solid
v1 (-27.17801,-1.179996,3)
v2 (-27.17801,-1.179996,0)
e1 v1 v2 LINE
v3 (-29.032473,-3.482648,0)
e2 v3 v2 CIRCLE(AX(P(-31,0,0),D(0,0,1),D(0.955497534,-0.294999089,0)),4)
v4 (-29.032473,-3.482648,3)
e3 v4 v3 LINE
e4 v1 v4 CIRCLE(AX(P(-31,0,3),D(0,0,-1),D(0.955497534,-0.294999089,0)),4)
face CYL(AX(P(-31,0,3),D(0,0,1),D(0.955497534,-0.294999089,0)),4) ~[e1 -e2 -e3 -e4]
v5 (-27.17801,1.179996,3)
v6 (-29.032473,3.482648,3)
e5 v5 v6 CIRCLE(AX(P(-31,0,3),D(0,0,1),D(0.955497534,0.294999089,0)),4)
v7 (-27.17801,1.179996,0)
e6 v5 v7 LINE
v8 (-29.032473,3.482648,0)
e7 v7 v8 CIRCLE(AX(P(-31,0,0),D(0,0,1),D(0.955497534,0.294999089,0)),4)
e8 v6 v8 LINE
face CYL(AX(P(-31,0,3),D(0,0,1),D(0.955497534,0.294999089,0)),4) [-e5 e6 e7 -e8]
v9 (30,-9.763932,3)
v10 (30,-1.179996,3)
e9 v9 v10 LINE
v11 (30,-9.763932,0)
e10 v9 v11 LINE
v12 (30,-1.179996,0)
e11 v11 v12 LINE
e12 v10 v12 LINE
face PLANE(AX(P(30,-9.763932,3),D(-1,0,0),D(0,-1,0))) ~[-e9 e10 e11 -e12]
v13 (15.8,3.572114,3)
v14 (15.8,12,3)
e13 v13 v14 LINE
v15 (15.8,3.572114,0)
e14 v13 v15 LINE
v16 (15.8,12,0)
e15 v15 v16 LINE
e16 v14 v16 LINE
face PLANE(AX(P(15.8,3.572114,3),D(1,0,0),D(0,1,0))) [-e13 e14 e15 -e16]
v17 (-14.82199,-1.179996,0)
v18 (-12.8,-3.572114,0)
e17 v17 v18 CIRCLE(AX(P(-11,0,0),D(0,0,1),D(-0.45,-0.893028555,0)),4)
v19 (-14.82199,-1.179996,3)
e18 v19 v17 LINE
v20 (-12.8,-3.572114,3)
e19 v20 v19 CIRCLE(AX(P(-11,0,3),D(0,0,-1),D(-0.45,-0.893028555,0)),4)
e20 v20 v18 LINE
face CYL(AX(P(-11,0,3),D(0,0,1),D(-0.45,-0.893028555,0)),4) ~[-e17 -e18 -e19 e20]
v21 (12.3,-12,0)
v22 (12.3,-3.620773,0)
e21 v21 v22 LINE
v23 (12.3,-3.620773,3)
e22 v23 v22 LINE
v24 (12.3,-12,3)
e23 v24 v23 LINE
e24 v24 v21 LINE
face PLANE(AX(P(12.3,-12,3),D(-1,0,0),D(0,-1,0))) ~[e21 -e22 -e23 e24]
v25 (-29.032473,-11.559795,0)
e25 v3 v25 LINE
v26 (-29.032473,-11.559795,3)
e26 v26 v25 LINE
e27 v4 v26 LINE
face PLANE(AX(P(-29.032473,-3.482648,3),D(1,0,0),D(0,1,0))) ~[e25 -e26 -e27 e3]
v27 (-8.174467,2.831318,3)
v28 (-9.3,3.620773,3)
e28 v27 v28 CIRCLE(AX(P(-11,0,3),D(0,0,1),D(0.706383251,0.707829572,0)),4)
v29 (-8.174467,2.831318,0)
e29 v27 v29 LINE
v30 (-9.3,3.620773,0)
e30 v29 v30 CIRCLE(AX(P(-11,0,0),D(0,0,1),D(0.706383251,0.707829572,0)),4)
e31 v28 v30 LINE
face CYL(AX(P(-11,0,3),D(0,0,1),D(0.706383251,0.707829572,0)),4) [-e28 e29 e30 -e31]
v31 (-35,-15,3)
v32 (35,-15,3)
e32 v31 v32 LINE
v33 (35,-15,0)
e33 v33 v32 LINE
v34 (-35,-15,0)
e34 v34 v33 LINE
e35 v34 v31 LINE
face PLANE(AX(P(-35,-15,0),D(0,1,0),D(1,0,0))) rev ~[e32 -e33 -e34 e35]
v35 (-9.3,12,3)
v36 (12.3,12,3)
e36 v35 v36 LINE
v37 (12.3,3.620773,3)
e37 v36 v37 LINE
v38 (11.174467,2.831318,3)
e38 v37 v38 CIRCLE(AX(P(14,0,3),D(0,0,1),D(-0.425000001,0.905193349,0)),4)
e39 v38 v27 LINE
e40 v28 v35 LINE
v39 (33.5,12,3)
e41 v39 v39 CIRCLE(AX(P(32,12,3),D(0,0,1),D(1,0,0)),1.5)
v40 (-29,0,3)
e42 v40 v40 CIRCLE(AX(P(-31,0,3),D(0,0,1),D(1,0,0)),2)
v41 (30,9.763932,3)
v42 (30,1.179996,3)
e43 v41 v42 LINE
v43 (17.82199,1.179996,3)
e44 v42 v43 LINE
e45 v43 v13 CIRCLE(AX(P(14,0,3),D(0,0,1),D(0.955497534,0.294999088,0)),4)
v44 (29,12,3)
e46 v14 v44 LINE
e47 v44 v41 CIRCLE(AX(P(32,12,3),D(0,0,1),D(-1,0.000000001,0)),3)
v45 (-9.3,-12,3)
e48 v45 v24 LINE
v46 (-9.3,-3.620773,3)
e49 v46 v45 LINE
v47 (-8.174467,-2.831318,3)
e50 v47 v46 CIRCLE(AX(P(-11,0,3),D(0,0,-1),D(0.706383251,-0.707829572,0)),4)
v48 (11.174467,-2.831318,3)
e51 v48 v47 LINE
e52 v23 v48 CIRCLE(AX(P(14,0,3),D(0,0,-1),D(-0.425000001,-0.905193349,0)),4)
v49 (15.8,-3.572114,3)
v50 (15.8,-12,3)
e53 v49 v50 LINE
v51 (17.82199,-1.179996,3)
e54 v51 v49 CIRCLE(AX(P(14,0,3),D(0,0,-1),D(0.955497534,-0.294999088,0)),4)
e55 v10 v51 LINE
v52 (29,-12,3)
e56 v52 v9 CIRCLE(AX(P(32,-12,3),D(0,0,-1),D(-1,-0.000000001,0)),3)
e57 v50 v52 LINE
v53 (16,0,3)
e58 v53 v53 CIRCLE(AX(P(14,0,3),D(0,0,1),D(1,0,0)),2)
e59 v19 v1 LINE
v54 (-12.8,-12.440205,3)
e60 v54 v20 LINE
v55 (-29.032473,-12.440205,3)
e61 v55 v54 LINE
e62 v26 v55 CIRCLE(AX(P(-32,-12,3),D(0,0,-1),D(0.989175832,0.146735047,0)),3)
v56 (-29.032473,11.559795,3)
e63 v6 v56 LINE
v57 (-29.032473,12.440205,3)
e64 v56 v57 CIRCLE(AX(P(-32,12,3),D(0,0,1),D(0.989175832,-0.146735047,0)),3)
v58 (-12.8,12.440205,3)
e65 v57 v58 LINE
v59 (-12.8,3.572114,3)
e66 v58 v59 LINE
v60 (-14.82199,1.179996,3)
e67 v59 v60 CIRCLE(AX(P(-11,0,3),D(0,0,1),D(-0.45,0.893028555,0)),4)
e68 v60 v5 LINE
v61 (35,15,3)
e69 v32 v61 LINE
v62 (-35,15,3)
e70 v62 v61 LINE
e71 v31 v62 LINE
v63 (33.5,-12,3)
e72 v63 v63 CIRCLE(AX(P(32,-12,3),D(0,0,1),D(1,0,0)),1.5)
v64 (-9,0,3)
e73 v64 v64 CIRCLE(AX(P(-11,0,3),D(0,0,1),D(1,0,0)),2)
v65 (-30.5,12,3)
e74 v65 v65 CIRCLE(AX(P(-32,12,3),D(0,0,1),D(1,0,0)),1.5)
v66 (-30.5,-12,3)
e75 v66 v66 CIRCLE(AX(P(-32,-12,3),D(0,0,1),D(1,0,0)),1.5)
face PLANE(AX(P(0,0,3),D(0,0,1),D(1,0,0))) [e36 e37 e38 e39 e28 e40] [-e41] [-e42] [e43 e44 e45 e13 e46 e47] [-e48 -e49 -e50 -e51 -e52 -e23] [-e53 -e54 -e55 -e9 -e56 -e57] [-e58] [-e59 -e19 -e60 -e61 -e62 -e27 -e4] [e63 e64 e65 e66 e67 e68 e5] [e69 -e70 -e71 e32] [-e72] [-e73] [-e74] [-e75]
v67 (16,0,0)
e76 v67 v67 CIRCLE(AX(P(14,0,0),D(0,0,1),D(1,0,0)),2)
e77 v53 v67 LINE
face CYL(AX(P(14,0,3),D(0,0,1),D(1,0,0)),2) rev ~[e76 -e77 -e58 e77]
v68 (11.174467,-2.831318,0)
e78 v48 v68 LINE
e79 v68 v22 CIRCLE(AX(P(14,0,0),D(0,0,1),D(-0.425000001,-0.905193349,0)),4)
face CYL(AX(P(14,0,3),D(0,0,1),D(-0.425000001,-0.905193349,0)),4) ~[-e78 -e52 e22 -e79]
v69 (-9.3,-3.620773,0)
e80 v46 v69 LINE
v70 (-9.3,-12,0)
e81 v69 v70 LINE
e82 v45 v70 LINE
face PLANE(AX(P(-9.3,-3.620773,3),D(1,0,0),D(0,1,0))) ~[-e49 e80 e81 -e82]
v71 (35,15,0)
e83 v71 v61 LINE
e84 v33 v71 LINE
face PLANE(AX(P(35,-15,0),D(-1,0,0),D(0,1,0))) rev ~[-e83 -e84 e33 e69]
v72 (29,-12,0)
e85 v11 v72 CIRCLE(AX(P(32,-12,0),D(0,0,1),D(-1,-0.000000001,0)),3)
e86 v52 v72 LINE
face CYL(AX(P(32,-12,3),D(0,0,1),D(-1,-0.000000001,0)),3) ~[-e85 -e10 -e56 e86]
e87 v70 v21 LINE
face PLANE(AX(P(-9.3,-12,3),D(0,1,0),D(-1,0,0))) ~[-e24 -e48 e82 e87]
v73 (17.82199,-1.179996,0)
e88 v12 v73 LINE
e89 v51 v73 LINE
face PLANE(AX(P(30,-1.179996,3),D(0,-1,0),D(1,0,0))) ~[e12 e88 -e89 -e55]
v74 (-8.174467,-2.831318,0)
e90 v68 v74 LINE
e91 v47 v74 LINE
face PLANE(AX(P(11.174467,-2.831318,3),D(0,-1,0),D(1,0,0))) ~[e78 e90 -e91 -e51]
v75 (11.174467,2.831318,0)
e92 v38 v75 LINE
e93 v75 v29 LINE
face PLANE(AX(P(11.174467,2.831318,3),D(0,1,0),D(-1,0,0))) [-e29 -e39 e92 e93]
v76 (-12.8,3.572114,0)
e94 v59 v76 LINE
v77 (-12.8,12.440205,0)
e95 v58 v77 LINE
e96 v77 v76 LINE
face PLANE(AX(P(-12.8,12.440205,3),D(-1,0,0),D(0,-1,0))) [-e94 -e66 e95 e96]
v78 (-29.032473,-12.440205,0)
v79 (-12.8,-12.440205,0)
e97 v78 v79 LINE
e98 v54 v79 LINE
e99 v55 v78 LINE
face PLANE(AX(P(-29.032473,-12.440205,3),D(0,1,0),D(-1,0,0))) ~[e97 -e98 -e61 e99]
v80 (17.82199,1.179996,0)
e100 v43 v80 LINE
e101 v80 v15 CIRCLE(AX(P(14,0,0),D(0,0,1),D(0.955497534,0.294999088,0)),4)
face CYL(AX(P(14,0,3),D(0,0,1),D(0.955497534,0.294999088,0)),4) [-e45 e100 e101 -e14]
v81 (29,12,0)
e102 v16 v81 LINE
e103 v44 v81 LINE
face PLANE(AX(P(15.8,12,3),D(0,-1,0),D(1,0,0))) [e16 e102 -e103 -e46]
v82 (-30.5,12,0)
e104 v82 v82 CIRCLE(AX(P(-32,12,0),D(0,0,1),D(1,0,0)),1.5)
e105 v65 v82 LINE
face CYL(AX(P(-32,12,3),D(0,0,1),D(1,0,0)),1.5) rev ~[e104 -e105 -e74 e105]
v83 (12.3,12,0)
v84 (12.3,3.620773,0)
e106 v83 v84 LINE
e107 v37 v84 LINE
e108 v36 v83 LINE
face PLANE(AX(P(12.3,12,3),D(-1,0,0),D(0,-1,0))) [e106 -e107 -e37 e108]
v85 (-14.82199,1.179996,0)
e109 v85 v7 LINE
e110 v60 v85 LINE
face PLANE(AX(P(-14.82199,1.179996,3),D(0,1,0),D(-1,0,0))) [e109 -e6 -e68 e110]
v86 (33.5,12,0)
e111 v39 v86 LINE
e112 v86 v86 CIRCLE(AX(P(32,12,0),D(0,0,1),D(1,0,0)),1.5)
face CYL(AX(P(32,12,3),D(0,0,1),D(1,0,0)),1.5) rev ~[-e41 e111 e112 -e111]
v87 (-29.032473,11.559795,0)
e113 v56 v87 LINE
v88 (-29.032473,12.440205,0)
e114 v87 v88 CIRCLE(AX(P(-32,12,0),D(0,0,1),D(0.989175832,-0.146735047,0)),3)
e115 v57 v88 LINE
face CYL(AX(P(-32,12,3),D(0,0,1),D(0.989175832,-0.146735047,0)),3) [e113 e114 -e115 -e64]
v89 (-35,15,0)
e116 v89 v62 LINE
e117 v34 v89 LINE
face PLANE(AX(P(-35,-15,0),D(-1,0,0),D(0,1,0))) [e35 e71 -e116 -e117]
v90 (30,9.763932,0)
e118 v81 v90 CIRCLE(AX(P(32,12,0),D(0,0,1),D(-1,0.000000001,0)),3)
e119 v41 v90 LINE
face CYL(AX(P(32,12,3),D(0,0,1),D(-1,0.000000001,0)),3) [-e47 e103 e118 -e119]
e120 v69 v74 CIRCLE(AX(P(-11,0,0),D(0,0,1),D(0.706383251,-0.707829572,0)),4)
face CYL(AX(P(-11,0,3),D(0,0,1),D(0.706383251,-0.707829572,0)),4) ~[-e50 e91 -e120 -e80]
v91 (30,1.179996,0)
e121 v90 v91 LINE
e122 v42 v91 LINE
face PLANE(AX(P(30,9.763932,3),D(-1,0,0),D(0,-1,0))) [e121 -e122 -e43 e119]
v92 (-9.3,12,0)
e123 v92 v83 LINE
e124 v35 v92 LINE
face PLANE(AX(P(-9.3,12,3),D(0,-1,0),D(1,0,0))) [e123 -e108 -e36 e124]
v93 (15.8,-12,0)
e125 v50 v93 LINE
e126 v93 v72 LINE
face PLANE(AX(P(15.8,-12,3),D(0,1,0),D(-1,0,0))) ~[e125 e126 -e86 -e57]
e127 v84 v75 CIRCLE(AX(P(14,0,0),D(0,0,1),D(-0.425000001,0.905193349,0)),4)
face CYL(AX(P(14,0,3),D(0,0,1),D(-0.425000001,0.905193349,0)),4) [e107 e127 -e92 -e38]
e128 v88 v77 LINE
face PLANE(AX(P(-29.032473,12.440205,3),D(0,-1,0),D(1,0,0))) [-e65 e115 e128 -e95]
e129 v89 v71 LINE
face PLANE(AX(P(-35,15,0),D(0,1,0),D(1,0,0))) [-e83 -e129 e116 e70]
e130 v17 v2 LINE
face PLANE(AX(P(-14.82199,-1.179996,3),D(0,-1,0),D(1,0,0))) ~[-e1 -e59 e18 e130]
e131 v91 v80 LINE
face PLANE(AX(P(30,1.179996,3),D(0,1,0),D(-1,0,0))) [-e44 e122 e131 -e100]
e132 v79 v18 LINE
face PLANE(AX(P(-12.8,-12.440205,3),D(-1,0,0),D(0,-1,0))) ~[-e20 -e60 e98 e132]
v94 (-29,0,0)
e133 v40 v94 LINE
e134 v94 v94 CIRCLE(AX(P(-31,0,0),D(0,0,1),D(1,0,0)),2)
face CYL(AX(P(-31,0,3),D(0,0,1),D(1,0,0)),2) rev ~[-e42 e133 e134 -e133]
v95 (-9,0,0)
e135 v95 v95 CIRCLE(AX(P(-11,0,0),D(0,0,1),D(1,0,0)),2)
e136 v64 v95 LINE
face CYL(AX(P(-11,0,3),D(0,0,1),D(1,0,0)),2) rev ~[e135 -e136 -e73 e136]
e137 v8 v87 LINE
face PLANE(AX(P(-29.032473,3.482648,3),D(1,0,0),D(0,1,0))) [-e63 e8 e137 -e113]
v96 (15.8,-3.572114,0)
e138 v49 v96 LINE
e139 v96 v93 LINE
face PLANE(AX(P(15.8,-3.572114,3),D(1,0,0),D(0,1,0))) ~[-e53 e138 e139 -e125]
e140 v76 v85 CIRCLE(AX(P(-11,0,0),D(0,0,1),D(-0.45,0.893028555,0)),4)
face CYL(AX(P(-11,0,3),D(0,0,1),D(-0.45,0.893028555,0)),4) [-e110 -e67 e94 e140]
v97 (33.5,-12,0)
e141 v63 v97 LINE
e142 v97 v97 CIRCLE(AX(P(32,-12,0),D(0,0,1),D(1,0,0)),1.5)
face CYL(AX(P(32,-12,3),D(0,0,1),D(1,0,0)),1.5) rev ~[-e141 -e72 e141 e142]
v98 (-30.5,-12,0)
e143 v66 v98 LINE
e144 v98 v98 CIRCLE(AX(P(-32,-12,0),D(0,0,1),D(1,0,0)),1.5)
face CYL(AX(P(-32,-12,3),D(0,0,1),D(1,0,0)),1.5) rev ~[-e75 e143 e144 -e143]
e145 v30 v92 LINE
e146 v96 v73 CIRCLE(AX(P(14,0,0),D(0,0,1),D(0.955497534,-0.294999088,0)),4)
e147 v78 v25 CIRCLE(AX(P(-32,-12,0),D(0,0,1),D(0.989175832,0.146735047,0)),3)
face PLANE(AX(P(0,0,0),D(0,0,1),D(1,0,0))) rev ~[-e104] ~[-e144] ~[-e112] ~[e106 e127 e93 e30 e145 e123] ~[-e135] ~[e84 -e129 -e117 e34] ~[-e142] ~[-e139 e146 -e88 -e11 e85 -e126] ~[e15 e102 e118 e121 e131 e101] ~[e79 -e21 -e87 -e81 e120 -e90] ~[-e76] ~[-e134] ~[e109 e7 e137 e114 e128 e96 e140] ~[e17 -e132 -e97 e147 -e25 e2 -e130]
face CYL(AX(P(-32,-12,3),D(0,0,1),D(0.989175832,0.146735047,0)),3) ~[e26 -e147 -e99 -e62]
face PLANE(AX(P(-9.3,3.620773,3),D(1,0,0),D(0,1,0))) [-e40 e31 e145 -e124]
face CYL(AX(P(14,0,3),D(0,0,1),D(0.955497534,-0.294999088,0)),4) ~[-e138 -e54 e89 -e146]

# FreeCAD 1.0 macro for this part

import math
import FreeCAD as App
import Part
import Sketcher
from FreeCAD import Vector
Q = App.Units.Quantity


def add_polygon(sketch, points):
    """Adds a closed chain of lines whose ends are joined by coincident constraints."""
    first, n = sketch.GeometryCount, len(points)
    for a, b in zip(points, points[1:] + points[:1]):
        sketch.addGeometry(Part.LineSegment(App.Vector(*a, 0), App.Vector(*b, 0)), False)
    for i in range(n):
        sketch.addConstraint(Sketcher.Constraint("Coincident", first + i, 2, first + (i + 1) % n, 1))

doc = App.newDocument("Part")
body = doc.addObject("PartDesign::Body", "Body")

# Sketch on XY plane
sketch1 = body.newObject("Sketcher::SketchObject", "Sketch")
sketch1.AttachmentSupport = (doc.getObject("XY_Plane"), [""])
sketch1.MapMode = "FlatFace"
add_polygon(sketch1, [(-35, 15), (-35, -15), (35, -15), (35, 15)])  # lines 0-3
sketch1.addConstraint(Sketcher.Constraint("Vertical", 0))
sketch1.addConstraint(Sketcher.Constraint("Horizontal", 1))
sketch1.addConstraint(Sketcher.Constraint("Vertical", 2))
sketch1.addConstraint(Sketcher.Constraint("Horizontal", 3))
sketch1.addConstraint(Sketcher.Constraint("Symmetric", 0, 2, 2, 2, -1, 1))
sketch1.addConstraint(Sketcher.Constraint("DistanceX", 1, 1, 1, 2, Q("70 mm")))
sketch1.addConstraint(Sketcher.Constraint("DistanceY", 0, 2, 0, 1, Q("30 mm")))
pad1 = body.newObject("PartDesign::Pad", "Pad")
pad1.Profile = sketch1
pad1.Length = 3

# Sketch on XY plane
sketch2 = body.newObject("Sketcher::SketchObject", "Sketch001")
sketch2.AttachmentSupport = (doc.getObject("XY_Plane"), [""])
sketch2.MapMode = "FlatFace"
sketch2.AttachmentOffset = App.Placement(Vector(0, 0, 3), App.Rotation())
sketch2.addGeometry(Part.Circle(Vector(32, 12, 0), Vector(0, 0, 1), 1.5), False)
sketch2.addGeometry(Part.Circle(Vector(-32, 12, 0), Vector(0, 0, 1), 1.5), False)
sketch2.addGeometry(Part.Circle(Vector(32, -12, 0), Vector(0, 0, 1), 1.5), False)
sketch2.addGeometry(Part.Circle(Vector(-32, -12, 0), Vector(0, 0, 1), 1.5), False)
sketch2.addGeometry(Part.Circle(Vector(-11, 0, 0), Vector(0, 0, 1), 2), False)
sketch2.addGeometry(Part.Circle(Vector(-31, 0, 0), Vector(0, 0, 1), 2), False)
sketch2.addGeometry(Part.Circle(Vector(14, 0, 0), Vector(0, 0, 1), 2), False)
sketch2.addGeometry(Part.LineSegment(Vector(-12.8, 12.4, 0), Vector(-29, 12.4, 0)), False)
sketch2.addGeometry(Part.ArcOfCircle(Part.Circle(Vector(-32, 12, 0), Vector(0, 0, 1), 3), math.radians(-8.44), math.radians(8.44)), False)
sketch2.addGeometry(Part.LineSegment(Vector(-29, 11.6, 0), Vector(-29, 3.5, 0)), False)
sketch2.addGeometry(Part.ArcOfCircle(Part.Circle(Vector(-31, 0, 0), Vector(0, 0, 1), 4), math.radians(17), math.radians(61)), False)
sketch2.addGeometry(Part.LineSegment(Vector(-27.2, 1.2, 0), Vector(-14.8, 1.2, 0)), False)
sketch2.addGeometry(Part.ArcOfCircle(Part.Circle(Vector(-11, 0, 0), Vector(0, 0, 1), 4), math.radians(117), math.radians(163)), False)
sketch2.addGeometry(Part.LineSegment(Vector(-12.8, 3.6, 0), Vector(-12.8, 12.4, 0)), False)
sketch2.addGeometry(Part.LineSegment(Vector(-8.2, 2.8, 0), Vector(11.2, 2.8, 0)), False)
sketch2.addGeometry(Part.ArcOfCircle(Part.Circle(Vector(14, 0, 0), Vector(0, 0, 1), 4), math.radians(115.15), math.radians(134.94)), False)
sketch2.addGeometry(Part.LineSegment(Vector(12.3, 3.6, 0), Vector(12.3, 12, 0)), False)
sketch2.addGeometry(Part.LineSegment(Vector(12.3, 12, 0), Vector(-9.3, 12, 0)), False)
sketch2.addGeometry(Part.LineSegment(Vector(-9.3, 12, 0), Vector(-9.3, 3.6, 0)), False)
sketch2.addGeometry(Part.ArcOfCircle(Part.Circle(Vector(-11, 0, 0), Vector(0, 0, 1), 4), math.radians(45.06), math.radians(64.85)), False)
sketch2.addGeometry(Part.LineSegment(Vector(17.8, 1.2, 0), Vector(30, 1.2, 0)), False)
sketch2.addGeometry(Part.LineSegment(Vector(30, 1.2, 0), Vector(30, 9.8, 0)), False)
sketch2.addGeometry(Part.ArcOfCircle(Part.Circle(Vector(32, 12, 0), Vector(0, 0, 1), 3), math.radians(180), math.radians(228)), False)
sketch2.addGeometry(Part.LineSegment(Vector(29, 12, 0), Vector(15.8, 12, 0)), False)
sketch2.addGeometry(Part.LineSegment(Vector(15.8, 12, 0), Vector(15.8, 3.6, 0)), False)
sketch2.addGeometry(Part.ArcOfCircle(Part.Circle(Vector(14, 0, 0), Vector(0, 0, 1), 4), math.radians(17), math.radians(63)), False)
sketch2.addConstraint(Sketcher.Constraint("Coincident", 7, 2, 8, 2))
sketch2.addConstraint(Sketcher.Constraint("Coincident", 8, 1, 9, 1))
sketch2.addConstraint(Sketcher.Constraint("Coincident", 9, 2, 10, 2))
sketch2.addConstraint(Sketcher.Constraint("Coincident", 10, 1, 11, 1))
sketch2.addConstraint(Sketcher.Constraint("Coincident", 11, 2, 12, 2))
sketch2.addConstraint(Sketcher.Constraint("Coincident", 12, 1, 13, 1))
sketch2.addConstraint(Sketcher.Constraint("Coincident", 13, 2, 7, 1))
sketch2.addConstraint(Sketcher.Constraint("Coincident", 14, 2, 15, 2))
sketch2.addConstraint(Sketcher.Constraint("Coincident", 15, 1, 16, 1))
sketch2.addConstraint(Sketcher.Constraint("Coincident", 16, 2, 17, 1))
sketch2.addConstraint(Sketcher.Constraint("Coincident", 17, 2, 18, 1))
sketch2.addConstraint(Sketcher.Constraint("Coincident", 18, 2, 19, 2))
sketch2.addConstraint(Sketcher.Constraint("Coincident", 19, 1, 14, 1))
sketch2.addConstraint(Sketcher.Constraint("Coincident", 20, 2, 21, 1))
sketch2.addConstraint(Sketcher.Constraint("Coincident", 21, 2, 22, 2))
sketch2.addConstraint(Sketcher.Constraint("Coincident", 22, 1, 23, 1))
sketch2.addConstraint(Sketcher.Constraint("Coincident", 23, 2, 24, 1))
sketch2.addConstraint(Sketcher.Constraint("Coincident", 24, 2, 25, 2))
sketch2.addConstraint(Sketcher.Constraint("Coincident", 25, 1, 20, 1))
sketch2.addConstraint(Sketcher.Constraint("Horizontal", 7))
sketch2.addConstraint(Sketcher.Constraint("Vertical", 9))
sketch2.addConstraint(Sketcher.Constraint("Horizontal", 11))
sketch2.addConstraint(Sketcher.Constraint("Vertical", 13))
sketch2.addConstraint(Sketcher.Constraint("Horizontal", 14))
sketch2.addConstraint(Sketcher.Constraint("Vertical", 16))
sketch2.addConstraint(Sketcher.Constraint("Horizontal", 17))
sketch2.addConstraint(Sketcher.Constraint("Vertical", 18))
sketch2.addConstraint(Sketcher.Constraint("Horizontal", 20))
sketch2.addConstraint(Sketcher.Constraint("Vertical", 21))
sketch2.addConstraint(Sketcher.Constraint("Horizontal", 23))
sketch2.addConstraint(Sketcher.Constraint("Vertical", 24))
sketch2.addConstraint(Sketcher.Constraint("Coincident", 8, 3, 1, 3))
sketch2.addConstraint(Sketcher.Constraint("Coincident", 10, 3, 5, 3))
sketch2.addConstraint(Sketcher.Constraint("Coincident", 12, 3, 4, 3))
sketch2.addConstraint(Sketcher.Constraint("Coincident", 15, 3, 6, 3))
sketch2.addConstraint(Sketcher.Constraint("Coincident", 19, 3, 4, 3))
sketch2.addConstraint(Sketcher.Constraint("Coincident", 22, 3, 0, 3))
sketch2.addConstraint(Sketcher.Constraint("Coincident", 25, 3, 6, 3))
sketch2.addConstraint(Sketcher.Constraint("Equal", 0, 1))
sketch2.addConstraint(Sketcher.Constraint("Equal", 1, 2))
sketch2.addConstraint(Sketcher.Constraint("Equal", 2, 3))
sketch2.addConstraint(Sketcher.Constraint("Equal", 4, 5))
sketch2.addConstraint(Sketcher.Constraint("Equal", 5, 6))
sketch2.addConstraint(Sketcher.Constraint("Equal", 10, 12))
sketch2.addConstraint(Sketcher.Constraint("Equal", 12, 15))
sketch2.addConstraint(Sketcher.Constraint("Equal", 15, 19))
sketch2.addConstraint(Sketcher.Constraint("Equal", 8, 22))
sketch2.addConstraint(Sketcher.Constraint("Equal", 19, 25))
sketch2.addConstraint(Sketcher.Constraint("Symmetric", 1, 3, 2, 3, -1, 1))
sketch2.addConstraint(Sketcher.Constraint("Symmetric", 0, 3, 3, 3, -1, 1))
sketch2.addConstraint(Sketcher.Constraint("Symmetric", 0, 3, 1, 3, -2))
sketch2.addConstraint(Sketcher.Constraint("PointOnObject", 4, 3, -1))
sketch2.addConstraint(Sketcher.Constraint("PointOnObject", 5, 3, -1))
sketch2.addConstraint(Sketcher.Constraint("PointOnObject", 6, 3, -1))
sketch2.addConstraint(Sketcher.Constraint("Horizontal", 22, 3, 16, 2))
sketch2.addConstraint(Sketcher.Constraint("Horizontal", 15, 1, 18, 2))
sketch2.addConstraint(Sketcher.Constraint("Horizontal", 11, 2, 20, 2))
sketch2.addConstraint(Sketcher.Constraint("Horizontal", 17, 2, 22, 1))
sketch2.addConstraint(Sketcher.Constraint("Horizontal", 12, 1, 24, 2))
sketch2.addConstraint(Sketcher.Constraint("Vertical", 7, 2, 8, 1))
sketch2.addConstraint(Sketcher.Constraint("Diameter", 0, Q("3 mm")))
sketch2.addConstraint(Sketcher.Constraint("Diameter", 4, Q("4 mm")))
sketch2.addConstraint(Sketcher.Constraint("Radius", 8, Q("3 mm")))
sketch2.addConstraint(Sketcher.Constraint("Radius", 10, Q("4 mm")))
sketch2.addConstraint(Sketcher.Constraint("DistanceX", 17, 2, 17, 1, Q("21.6 mm")))
sketch2.addConstraint(Sketcher.Constraint("DistanceX", 23, 2, 23, 1, Q("13.2 mm")))
sketch2.addConstraint(Sketcher.Constraint("DistanceX", -1, 1, 0, 3, Q("32 mm")))
sketch2.addConstraint(Sketcher.Constraint("DistanceY", -1, 1, 0, 3, Q("12 mm")))
sketch2.addConstraint(Sketcher.Constraint("DistanceX", 4, 3, -1, 1, Q("11 mm")))
sketch2.addConstraint(Sketcher.Constraint("DistanceX", 5, 3, -1, 1, Q("31 mm")))
sketch2.addConstraint(Sketcher.Constraint("DistanceX", -1, 1, 6, 3, Q("14 mm")))
sketch2.addConstraint(Sketcher.Constraint("DistanceX", -1, 1, 20, 2, Q("30 mm")))
sketch2.addConstraint(Sketcher.Constraint("DistanceX", 11, 1, 11, 2, Q("12.35602 mm")))
sketch2.addConstraint(Sketcher.Constraint("DistanceY", 13, 1, 13, 2, Q("8.868091 mm")))
sketch2.addConstraint(Sketcher.Constraint("DistanceX", 14, 1, 14, 2, Q("19.348934 mm")))
pocket1 = body.newObject("PartDesign::Pocket", "Pocket")
pocket1.Profile = sketch2
pocket1.Type = "ThroughAll"
doc.recompute()

mirrored = body.newObject("PartDesign::Mirrored", "Mirrored")
mirrored.Originals = [pocket1]
mirrored.MirrorPlane = (doc.getObject("XZ_Plane"), [""])
body.Tip = mirrored

doc.recompute()
